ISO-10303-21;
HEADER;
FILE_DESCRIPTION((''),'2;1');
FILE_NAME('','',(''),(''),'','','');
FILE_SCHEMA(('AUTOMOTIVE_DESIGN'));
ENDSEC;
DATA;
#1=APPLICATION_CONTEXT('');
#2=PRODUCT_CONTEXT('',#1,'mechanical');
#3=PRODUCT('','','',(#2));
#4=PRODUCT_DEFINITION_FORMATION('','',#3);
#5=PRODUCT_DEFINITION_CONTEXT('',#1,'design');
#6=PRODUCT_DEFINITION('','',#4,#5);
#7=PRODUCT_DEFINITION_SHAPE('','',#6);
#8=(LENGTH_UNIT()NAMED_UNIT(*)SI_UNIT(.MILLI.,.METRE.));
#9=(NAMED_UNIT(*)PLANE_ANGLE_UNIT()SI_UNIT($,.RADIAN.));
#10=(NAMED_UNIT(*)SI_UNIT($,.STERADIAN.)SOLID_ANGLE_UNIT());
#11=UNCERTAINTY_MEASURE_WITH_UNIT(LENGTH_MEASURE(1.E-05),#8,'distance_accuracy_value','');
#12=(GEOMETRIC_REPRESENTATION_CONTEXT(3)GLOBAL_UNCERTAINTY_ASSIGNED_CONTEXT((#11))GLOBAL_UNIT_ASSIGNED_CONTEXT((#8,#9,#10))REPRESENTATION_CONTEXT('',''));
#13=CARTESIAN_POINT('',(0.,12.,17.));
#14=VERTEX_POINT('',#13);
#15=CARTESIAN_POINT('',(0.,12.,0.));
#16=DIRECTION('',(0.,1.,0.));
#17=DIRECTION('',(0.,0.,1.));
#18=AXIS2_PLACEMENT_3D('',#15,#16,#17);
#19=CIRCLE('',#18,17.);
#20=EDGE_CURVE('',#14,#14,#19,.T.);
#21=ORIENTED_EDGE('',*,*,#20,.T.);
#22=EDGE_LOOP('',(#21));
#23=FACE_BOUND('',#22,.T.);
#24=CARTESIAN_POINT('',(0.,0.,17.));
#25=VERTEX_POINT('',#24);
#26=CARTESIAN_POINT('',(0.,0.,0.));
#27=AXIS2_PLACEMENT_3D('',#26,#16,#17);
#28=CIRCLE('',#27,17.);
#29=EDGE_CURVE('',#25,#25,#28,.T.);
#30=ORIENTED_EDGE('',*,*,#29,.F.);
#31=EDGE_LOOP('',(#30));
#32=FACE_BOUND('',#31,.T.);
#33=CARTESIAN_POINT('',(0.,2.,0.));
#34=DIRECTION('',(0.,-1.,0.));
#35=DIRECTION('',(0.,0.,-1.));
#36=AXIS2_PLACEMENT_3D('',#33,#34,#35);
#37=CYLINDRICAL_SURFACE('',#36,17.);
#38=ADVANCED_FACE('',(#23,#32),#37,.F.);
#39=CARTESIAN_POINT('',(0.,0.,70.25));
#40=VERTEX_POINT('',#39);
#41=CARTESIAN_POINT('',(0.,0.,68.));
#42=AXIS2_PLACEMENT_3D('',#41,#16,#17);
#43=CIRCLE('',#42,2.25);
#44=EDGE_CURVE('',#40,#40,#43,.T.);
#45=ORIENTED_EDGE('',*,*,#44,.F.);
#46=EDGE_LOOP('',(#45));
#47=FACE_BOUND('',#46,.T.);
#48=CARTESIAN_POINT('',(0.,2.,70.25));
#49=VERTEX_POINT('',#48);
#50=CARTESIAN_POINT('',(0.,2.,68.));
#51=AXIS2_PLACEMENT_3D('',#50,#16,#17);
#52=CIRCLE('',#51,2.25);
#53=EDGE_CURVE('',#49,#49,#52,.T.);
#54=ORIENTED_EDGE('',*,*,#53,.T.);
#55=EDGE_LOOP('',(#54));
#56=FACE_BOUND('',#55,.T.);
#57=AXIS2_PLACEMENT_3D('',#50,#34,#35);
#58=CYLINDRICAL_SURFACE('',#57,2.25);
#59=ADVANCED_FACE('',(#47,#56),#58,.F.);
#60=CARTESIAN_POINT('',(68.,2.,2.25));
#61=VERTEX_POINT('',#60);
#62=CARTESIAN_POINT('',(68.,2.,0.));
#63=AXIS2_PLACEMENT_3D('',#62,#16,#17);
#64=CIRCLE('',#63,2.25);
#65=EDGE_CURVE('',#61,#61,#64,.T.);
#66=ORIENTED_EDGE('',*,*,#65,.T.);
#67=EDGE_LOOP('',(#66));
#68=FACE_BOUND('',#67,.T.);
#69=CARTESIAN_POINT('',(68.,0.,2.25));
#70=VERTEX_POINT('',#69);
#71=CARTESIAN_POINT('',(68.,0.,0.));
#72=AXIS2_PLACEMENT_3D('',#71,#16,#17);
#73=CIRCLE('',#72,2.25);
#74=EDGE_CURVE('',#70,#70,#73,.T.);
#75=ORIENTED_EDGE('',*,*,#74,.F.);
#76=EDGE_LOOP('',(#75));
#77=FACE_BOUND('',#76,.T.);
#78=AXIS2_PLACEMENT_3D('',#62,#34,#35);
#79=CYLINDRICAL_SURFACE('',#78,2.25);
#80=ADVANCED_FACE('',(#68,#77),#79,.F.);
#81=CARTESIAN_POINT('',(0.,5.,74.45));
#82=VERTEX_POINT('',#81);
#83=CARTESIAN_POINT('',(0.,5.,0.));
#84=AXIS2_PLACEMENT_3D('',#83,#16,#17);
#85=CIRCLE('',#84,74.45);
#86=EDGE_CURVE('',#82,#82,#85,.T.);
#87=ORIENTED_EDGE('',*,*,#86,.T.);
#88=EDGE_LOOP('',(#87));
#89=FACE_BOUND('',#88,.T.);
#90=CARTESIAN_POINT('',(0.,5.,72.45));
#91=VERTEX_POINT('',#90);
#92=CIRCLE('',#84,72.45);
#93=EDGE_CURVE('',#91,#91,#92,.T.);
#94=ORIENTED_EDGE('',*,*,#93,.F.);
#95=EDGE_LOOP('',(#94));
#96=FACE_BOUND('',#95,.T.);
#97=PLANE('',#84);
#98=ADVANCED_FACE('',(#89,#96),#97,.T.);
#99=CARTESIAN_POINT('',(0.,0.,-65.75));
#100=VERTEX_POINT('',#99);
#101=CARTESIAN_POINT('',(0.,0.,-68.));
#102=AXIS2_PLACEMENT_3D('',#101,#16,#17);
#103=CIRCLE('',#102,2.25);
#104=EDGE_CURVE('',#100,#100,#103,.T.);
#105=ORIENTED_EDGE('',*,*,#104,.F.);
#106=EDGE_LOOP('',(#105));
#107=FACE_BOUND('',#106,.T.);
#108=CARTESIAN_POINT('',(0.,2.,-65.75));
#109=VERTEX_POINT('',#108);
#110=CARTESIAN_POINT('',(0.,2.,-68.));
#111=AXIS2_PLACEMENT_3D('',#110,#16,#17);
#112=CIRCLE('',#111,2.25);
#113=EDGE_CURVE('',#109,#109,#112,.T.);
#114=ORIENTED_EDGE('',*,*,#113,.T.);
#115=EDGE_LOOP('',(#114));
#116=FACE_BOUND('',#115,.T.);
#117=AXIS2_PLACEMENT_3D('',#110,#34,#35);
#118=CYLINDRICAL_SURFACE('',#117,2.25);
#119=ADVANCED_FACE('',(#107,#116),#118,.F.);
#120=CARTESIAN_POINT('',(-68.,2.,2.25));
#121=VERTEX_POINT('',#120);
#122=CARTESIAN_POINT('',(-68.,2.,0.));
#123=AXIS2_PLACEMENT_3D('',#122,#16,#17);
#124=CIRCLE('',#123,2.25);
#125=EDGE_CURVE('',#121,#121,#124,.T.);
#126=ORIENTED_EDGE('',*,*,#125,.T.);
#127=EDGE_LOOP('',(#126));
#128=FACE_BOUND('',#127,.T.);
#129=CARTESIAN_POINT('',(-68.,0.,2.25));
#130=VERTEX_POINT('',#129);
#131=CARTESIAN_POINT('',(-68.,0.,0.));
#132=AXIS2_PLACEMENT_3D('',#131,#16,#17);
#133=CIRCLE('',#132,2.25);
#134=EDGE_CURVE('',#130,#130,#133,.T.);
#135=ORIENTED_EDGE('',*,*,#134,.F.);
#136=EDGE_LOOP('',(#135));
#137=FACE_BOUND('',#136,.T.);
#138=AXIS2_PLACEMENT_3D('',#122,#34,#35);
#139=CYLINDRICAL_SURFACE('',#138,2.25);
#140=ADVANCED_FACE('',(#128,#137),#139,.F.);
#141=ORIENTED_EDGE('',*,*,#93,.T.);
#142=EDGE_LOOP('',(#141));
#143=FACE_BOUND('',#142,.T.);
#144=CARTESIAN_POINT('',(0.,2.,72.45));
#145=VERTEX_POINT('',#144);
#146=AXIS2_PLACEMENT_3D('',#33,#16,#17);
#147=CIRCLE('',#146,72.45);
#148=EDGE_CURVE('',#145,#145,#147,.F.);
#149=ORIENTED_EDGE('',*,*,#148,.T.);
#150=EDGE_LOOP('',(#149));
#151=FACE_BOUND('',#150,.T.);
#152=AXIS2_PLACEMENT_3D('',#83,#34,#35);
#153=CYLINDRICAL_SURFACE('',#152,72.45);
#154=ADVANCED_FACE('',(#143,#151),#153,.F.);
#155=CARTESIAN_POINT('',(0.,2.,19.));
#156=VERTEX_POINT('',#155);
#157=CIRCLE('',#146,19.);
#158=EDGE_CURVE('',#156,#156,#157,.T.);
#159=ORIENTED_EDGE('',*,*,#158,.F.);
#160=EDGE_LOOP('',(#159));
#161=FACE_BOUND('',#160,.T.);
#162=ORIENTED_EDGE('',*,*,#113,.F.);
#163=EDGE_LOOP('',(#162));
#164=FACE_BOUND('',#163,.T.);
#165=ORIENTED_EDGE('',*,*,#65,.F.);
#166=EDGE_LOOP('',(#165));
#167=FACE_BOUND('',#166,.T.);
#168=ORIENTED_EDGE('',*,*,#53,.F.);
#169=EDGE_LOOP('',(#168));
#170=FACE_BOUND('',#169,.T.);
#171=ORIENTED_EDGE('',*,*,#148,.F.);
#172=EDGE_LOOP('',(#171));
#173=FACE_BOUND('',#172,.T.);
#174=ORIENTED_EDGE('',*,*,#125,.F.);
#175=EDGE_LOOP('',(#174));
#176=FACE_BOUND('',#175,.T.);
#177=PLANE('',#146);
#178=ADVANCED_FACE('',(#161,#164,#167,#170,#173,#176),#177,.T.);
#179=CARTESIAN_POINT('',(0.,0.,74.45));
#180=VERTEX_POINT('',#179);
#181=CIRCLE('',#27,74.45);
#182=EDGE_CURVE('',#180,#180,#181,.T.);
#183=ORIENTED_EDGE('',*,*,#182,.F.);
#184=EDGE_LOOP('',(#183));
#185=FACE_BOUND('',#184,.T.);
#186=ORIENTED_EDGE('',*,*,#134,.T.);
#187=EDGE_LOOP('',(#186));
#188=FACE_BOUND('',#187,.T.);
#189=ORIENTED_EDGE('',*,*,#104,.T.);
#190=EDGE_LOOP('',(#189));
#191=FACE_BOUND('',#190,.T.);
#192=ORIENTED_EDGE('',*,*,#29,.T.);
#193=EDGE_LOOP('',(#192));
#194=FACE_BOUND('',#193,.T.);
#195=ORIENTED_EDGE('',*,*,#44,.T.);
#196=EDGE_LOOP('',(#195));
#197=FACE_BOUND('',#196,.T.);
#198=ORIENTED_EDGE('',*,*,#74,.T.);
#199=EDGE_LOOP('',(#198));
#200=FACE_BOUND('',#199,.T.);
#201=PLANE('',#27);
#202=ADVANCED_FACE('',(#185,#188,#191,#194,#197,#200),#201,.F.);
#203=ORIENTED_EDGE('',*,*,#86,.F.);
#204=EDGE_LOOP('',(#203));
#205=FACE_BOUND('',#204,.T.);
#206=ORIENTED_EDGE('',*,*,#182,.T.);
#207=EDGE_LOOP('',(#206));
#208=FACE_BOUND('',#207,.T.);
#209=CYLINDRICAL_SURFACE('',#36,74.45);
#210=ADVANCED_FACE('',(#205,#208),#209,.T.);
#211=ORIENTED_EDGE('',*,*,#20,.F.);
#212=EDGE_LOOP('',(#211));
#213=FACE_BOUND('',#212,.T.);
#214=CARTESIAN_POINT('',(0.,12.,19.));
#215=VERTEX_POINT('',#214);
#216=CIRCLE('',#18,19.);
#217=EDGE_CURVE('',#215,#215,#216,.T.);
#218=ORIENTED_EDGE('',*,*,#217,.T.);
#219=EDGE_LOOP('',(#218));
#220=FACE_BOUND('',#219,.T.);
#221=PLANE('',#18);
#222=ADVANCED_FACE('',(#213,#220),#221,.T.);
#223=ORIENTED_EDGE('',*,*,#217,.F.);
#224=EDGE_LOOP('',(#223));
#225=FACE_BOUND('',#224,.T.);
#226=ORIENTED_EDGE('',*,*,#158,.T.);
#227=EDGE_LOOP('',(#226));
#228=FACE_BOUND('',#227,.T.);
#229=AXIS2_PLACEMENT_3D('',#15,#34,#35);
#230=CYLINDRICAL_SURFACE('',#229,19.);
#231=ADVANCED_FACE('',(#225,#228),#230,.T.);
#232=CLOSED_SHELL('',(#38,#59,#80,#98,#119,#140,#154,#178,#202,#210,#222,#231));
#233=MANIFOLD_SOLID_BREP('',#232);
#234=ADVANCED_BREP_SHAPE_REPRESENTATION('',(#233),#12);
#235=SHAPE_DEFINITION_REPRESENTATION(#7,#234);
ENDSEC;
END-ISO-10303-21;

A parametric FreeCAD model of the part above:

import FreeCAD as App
import Part
import Sketcher
from FreeCAD import Vector
Q = App.Units.Quantity

doc = App.newDocument("Part")
body = doc.addObject("PartDesign::Body", "Body")

# Sketch on XZ plane
sketch1 = body.newObject("Sketcher::SketchObject", "Sketch")
sketch1.AttachmentSupport = (doc.getObject("XZ_Plane"), [""])
sketch1.MapMode = "FlatFace"
sketch1.addGeometry([
    Part.Circle(Vector(0, 0, 0), Vector(0, 0, 1), 74.45),  # 0
    Part.Circle(Vector(0, -68, 0), Vector(0, 0, 1), 2.25),  # 1
    Part.Circle(Vector(-68, 0, 0), Vector(0, 0, 1), 2.25),  # 2
    Part.Circle(Vector(68, 0, 0), Vector(0, 0, 1), 2.25),  # 3
    Part.Circle(Vector(0, 0, 0), Vector(0, 0, 1), 17),  # 4
    Part.Circle(Vector(0, 68, 0), Vector(0, 0, 1), 2.25),  # 5
], False)
sketch1.addConstraint([
    Sketcher.Constraint("Coincident", 0, 3, -1, 1),
    Sketcher.Constraint("Coincident", 4, 3, -1, 1),
    Sketcher.Constraint("Equal", 1, 2),
    Sketcher.Constraint("Equal", 2, 3),
    Sketcher.Constraint("Equal", 3, 5),
    Sketcher.Constraint("Symmetric", 2, 3, 3, 3, -1, 1),
    Sketcher.Constraint("Symmetric", 1, 3, 5, 3, -1, 1),
    Sketcher.Constraint("PointOnObject", 1, 3, -2),
    Sketcher.Constraint("PointOnObject", 2, 3, -1),
    Sketcher.Constraint("Diameter", 4, Q("34 mm")),
    Sketcher.Constraint("Diameter", 0, Q("148.9 mm")),
    Sketcher.Constraint("Diameter", 1, Q("4.5 mm")),
    Sketcher.Constraint("DistanceY", 1, 3, -1, 1, Q("68 mm")),
    Sketcher.Constraint("DistanceX", 2, 3, -1, 1, Q("68 mm")),
])
pad1 = body.newObject("PartDesign::Pad", "Pad")
pad1.Profile = sketch1
pad1.Length = 2
pad1.Reversed = True

# Sketch on XZ plane
sketch2 = body.newObject("Sketcher::SketchObject", "Sketch001")
sketch2.AttachmentSupport = (doc.getObject("XZ_Plane"), [""])
sketch2.MapMode = "FlatFace"
sketch2.AttachmentOffset = App.Placement(Vector(0, 0, -2), App.Rotation())
sketch2.addGeometry([
    Part.Circle(Vector(0, 0, 0), Vector(0, 0, 1), 19),
    Part.Circle(Vector(0, 0, 0), Vector(0, 0, 1), 17),
], False)
sketch2.addConstraint([
    Sketcher.Constraint("Coincident", 0, 3, -1, 1),
    Sketcher.Constraint("Coincident", 1, 3, -1, 1),
    Sketcher.Constraint("Diameter", 0, Q("38 mm")),
    Sketcher.Constraint("Diameter", 1, Q("34 mm")),
])
pad2 = body.newObject("PartDesign::Pad", "Pad001")
pad2.Profile = sketch2
pad2.Length = 10
pad2.Reversed = True

# Sketch on XZ plane
sketch3 = body.newObject("Sketcher::SketchObject", "Sketch002")
sketch3.AttachmentSupport = (doc.getObject("XZ_Plane"), [""])
sketch3.MapMode = "FlatFace"
sketch3.AttachmentOffset = App.Placement(Vector(0, 0, -2), App.Rotation())
sketch3.addGeometry([
    Part.Circle(Vector(0, 0, 0), Vector(0, 0, 1), 74.45),
    Part.Circle(Vector(0, 0, 0), Vector(0, 0, 1), 72.45),
], False)
sketch3.addConstraint([
    Sketcher.Constraint("Coincident", 0, 3, -1, 1),
    Sketcher.Constraint("Coincident", 1, 3, -1, 1),
    Sketcher.Constraint("Diameter", 0, Q("148.9 mm")),
    Sketcher.Constraint("Diameter", 1, Q("144.9 mm")),
])
pad3 = body.newObject("PartDesign::Pad", "Pad002")
pad3.Profile = sketch3
pad3.Length = 3
pad3.Reversed = True

doc.recompute()
